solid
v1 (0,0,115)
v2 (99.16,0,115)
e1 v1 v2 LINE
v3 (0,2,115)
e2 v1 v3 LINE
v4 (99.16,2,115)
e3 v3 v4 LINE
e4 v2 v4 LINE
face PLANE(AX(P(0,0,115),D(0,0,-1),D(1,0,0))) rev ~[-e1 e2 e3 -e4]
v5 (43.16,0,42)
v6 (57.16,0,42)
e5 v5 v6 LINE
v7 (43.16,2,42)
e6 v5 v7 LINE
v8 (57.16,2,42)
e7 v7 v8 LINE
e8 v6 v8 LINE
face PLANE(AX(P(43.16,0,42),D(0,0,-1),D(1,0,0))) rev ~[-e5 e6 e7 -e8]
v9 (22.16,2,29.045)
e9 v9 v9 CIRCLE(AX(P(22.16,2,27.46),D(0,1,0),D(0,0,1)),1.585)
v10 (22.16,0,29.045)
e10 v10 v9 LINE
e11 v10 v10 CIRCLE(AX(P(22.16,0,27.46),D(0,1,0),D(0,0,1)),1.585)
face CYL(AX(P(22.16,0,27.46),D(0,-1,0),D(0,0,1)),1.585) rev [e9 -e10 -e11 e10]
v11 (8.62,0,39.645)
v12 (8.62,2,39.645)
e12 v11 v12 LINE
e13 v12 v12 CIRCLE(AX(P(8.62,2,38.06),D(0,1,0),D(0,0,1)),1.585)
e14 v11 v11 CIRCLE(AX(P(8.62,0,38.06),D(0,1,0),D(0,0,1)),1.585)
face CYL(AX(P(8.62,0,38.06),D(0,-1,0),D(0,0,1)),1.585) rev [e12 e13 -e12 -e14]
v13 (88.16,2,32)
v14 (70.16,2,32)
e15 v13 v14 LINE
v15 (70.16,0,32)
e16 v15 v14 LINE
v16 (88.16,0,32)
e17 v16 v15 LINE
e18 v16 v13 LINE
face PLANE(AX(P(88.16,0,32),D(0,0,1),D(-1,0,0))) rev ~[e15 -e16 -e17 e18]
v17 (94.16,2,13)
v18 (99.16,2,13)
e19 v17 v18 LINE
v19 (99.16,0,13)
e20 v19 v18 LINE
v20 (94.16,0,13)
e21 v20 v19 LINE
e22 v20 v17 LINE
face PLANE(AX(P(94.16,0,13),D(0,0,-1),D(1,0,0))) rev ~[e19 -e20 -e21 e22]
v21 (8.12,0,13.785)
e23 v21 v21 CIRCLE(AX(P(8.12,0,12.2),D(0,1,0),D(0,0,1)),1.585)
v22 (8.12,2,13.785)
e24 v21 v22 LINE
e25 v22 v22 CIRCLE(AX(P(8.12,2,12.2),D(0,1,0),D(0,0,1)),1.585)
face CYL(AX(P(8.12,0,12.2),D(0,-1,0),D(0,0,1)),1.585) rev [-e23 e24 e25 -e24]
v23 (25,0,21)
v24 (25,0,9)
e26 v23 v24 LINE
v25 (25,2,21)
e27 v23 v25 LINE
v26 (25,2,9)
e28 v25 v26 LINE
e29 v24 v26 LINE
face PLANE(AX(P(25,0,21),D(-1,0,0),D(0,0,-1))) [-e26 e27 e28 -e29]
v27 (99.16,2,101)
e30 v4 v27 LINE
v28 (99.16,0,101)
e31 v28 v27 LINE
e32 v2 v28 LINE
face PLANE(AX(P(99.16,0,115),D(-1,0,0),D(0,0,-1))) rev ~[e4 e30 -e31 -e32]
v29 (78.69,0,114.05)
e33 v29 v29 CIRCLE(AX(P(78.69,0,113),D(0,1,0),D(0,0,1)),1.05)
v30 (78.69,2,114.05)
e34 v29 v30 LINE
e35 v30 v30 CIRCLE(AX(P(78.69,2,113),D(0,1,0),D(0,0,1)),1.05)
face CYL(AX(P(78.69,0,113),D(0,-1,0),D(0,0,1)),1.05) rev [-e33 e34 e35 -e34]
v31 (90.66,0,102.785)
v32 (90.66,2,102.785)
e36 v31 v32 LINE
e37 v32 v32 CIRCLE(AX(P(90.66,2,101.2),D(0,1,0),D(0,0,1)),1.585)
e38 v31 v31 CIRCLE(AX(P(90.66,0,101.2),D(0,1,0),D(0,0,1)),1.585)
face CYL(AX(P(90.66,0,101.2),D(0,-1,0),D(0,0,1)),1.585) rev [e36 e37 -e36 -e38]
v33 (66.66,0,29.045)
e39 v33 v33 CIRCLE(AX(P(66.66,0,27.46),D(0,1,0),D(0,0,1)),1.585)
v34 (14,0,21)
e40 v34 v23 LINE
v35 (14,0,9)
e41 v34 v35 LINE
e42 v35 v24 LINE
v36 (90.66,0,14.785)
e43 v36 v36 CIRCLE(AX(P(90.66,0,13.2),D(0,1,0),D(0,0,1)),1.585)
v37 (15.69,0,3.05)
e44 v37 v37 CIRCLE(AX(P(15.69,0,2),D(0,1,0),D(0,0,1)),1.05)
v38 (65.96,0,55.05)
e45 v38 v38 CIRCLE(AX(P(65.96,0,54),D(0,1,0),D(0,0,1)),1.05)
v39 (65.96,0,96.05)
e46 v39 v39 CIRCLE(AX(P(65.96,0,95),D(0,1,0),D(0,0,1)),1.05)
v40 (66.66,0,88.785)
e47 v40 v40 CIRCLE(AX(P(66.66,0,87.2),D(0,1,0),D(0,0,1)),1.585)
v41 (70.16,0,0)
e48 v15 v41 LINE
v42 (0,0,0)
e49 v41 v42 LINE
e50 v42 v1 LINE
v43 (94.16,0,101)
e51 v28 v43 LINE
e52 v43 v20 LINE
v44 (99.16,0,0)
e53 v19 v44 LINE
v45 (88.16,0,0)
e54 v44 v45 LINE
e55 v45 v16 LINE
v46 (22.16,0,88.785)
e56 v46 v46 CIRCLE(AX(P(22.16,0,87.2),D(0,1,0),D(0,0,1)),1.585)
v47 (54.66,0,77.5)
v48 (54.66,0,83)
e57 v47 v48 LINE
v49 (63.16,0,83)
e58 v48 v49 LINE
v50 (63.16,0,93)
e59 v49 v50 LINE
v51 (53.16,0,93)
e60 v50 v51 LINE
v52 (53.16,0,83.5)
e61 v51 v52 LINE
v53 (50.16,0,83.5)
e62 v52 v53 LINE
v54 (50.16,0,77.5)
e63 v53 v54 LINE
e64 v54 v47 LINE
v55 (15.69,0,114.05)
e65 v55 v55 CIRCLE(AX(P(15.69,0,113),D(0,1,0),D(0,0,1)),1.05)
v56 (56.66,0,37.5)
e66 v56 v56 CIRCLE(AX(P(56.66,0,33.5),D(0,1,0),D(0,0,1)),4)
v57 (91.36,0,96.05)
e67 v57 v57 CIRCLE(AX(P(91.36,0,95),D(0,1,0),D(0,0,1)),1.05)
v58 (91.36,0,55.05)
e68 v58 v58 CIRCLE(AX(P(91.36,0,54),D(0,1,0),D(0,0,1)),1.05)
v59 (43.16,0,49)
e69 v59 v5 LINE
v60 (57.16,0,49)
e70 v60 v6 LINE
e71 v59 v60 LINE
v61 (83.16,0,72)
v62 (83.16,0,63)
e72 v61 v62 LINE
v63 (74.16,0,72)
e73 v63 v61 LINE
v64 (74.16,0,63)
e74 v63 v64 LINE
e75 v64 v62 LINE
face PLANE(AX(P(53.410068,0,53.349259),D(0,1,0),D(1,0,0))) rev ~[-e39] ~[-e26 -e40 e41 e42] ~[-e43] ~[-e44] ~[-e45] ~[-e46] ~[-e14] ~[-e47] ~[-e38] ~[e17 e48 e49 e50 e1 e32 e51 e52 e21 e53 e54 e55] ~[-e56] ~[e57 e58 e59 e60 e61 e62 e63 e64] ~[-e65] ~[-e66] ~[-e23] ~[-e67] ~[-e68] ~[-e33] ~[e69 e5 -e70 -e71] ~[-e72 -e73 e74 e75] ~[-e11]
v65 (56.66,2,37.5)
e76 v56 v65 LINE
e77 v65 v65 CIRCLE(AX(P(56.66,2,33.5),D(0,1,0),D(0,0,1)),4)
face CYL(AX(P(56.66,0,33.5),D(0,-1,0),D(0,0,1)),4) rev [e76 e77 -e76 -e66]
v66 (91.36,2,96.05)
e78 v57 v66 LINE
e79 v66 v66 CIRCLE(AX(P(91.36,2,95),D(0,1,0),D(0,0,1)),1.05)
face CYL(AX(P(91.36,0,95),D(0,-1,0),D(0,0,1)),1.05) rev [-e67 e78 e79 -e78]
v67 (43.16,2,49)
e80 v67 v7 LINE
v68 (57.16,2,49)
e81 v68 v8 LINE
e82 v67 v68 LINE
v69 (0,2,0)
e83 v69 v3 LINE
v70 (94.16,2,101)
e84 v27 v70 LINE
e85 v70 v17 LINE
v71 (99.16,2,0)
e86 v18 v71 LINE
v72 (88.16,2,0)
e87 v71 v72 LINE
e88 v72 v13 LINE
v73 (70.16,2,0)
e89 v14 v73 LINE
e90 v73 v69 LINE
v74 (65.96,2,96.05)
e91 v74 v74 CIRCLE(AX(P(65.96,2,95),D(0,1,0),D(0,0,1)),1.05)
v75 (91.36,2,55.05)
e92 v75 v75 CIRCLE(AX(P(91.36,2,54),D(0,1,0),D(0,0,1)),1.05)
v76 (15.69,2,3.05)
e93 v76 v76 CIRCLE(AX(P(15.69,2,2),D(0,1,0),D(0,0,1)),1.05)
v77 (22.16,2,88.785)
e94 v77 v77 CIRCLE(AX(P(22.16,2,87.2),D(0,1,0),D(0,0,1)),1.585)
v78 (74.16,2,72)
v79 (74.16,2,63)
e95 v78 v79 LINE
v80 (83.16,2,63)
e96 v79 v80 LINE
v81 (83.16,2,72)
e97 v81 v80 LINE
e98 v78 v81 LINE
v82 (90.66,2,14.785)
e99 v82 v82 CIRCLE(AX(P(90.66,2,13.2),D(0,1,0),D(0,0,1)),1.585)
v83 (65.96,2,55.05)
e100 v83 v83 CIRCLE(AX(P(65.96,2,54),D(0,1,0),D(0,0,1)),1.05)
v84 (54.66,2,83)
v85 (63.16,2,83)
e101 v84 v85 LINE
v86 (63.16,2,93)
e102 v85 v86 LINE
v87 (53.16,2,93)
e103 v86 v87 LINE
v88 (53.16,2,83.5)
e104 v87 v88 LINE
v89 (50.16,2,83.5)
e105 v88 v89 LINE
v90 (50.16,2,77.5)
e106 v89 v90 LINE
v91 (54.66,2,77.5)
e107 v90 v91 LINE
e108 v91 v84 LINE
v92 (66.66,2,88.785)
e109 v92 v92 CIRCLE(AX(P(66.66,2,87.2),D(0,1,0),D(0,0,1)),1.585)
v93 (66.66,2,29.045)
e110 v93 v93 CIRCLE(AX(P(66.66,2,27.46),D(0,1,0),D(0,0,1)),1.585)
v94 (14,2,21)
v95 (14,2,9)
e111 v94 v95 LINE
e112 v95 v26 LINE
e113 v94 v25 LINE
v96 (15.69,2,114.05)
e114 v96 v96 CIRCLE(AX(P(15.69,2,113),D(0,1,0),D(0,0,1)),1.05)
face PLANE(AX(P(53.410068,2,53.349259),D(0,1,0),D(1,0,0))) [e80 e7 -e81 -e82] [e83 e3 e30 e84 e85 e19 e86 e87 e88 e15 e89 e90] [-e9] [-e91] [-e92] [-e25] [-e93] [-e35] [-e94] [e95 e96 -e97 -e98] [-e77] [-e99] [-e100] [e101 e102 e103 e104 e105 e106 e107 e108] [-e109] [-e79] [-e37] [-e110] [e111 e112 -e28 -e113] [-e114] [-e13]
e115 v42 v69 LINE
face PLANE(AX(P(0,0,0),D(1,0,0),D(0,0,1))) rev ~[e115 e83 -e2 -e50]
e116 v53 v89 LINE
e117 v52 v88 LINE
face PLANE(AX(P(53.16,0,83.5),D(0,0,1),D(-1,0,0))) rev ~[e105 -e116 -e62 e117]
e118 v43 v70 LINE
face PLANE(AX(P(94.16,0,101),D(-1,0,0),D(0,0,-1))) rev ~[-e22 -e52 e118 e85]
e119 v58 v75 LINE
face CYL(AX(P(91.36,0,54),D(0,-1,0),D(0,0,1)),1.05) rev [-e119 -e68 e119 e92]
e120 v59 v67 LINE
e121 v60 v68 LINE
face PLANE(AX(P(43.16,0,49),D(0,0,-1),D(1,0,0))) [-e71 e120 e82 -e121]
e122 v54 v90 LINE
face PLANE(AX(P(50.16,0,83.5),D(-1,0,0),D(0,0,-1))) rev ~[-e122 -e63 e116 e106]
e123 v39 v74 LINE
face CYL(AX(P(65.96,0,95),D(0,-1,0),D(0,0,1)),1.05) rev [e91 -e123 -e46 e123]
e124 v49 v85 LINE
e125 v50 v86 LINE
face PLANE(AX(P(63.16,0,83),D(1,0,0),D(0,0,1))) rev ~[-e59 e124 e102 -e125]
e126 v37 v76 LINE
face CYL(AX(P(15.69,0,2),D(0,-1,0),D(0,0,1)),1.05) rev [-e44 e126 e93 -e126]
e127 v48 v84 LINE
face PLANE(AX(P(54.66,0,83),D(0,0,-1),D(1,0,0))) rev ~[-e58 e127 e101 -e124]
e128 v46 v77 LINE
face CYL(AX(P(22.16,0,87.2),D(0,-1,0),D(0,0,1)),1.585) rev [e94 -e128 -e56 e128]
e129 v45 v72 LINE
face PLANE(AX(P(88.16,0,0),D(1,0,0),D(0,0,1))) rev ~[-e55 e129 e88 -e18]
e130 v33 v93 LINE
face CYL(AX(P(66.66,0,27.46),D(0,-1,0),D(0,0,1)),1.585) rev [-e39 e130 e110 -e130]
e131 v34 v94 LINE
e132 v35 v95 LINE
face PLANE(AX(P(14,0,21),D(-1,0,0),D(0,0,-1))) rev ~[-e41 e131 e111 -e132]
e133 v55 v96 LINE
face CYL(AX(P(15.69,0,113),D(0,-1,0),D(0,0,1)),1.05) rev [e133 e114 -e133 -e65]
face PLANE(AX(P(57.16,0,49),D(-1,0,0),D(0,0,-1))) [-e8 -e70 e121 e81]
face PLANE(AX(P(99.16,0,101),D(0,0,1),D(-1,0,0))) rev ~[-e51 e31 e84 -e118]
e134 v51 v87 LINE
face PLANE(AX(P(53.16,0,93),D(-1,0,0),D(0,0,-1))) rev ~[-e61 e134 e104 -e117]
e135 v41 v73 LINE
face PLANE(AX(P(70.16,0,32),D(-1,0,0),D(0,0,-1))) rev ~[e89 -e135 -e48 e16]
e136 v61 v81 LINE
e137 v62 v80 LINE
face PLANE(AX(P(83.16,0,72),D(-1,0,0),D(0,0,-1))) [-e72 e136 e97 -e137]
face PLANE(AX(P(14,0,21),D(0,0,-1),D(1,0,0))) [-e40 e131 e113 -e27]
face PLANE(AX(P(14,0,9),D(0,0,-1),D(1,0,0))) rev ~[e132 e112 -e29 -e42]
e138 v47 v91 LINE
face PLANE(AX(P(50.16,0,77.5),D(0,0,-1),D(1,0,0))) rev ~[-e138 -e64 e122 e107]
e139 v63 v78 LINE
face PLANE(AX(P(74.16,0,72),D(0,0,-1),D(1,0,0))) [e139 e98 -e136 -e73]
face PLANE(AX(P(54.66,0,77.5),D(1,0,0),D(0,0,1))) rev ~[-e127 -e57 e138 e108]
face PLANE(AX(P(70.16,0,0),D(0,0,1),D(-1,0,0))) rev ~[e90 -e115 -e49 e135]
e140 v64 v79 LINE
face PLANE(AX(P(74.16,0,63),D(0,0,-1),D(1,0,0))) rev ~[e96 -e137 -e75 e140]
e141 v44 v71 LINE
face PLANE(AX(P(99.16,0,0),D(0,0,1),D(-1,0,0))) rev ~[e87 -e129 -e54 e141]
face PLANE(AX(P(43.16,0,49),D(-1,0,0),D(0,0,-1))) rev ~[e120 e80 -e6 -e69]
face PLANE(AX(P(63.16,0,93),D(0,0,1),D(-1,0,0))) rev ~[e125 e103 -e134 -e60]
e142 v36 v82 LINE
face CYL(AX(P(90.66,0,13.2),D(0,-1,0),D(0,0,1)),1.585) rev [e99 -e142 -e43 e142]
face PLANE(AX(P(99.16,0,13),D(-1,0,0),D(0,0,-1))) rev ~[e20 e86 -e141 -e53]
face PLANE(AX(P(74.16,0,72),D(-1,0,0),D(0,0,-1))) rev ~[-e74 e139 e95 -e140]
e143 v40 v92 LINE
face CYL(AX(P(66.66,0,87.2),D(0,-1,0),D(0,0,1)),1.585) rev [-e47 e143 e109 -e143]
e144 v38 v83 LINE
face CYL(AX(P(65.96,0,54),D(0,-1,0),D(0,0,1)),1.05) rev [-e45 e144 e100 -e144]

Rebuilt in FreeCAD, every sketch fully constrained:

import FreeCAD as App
import Part
import Sketcher

V = App.Vector


def add_polygon(sketch, points):
    """Adds a closed chain of lines whose ends are joined by coincident constraints."""
    first, n = sketch.GeometryCount, len(points)
    for a, b in zip(points, points[1:] + points[:1]):
        sketch.addGeometry(Part.LineSegment(App.Vector(*a, 0), App.Vector(*b, 0)), False)
    for i in range(n):
        sketch.addConstraint(Sketcher.Constraint("Coincident", first + i, 2, first + (i + 1) % n, 1))

doc = App.newDocument("Part")
params = doc.addObject("Spreadsheet::Sheet", "Params")
for row, (alias, value) in enumerate([
    ("sketch1_diameter", "8 mm"),
    ("sketch1_diameter2", "2.1 mm"),
    ("sketch1_diameter3", "3.17 mm"),
    ("sketch1_width", "5 mm"),
    ("sketch1_width2", "11 mm"),
    ("pad1_length", "2 mm"),
], start=1):
    params.set(f"A{row}", alias)
    params.set(f"B{row}", "=" + value)
    params.setAlias(f"B{row}", alias)

body = doc.addObject("PartDesign::Body", "Body")

# Sketch on XZ plane
sketch1 = doc.addObject("Sketcher::SketchObject", "Sketch")
body.addObject(sketch1)
sketch1.AttachmentSupport = (doc.XZ_Plane, [""])
sketch1.MapMode = "FlatFace"
add_polygon(sketch1, [(70.2, 0), (0, 0), (0, 115), (99.2, 115), (99.2, 101), (94.2, 101), (94.2, 13), (99.2, 13), (99.2, 0), (88.2, 0), (88.2, 32), (70.2, 32)])  # lines 0-11
sketch1.addGeometry(Part.Circle(V(15.7, 113, 0), V(0, 0, 1), 1.1), False)  # 12
sketch1.addGeometry(Part.Circle(V(22.2, 87.2, 0), V(0, 0, 1), 1.6), False)  # 13
sketch1.addGeometry(Part.Circle(V(66, 95, 0), V(0, 0, 1), 1.1), False)  # 14
sketch1.addGeometry(Part.Circle(V(66.7, 87.2, 0), V(0, 0, 1), 1.6), False)  # 15
sketch1.addGeometry(Part.Circle(V(78.7, 113, 0), V(0, 0, 1), 1.1), False)  # 16
sketch1.addGeometry(Part.Circle(V(90.7, 101.2, 0), V(0, 0, 1), 1.6), False)  # 17
sketch1.addGeometry(Part.Circle(V(91.4, 95, 0), V(0, 0, 1), 1.1), False)  # 18
add_polygon(sketch1, [(53.2, 83.5), (50.2, 83.5), (50.2, 77.5), (54.7, 77.5), (54.7, 83), (63.2, 83), (63.2, 93), (53.2, 93)])  # lines 19-26
add_polygon(sketch1, [(83.2, 72), (74.2, 72), (74.2, 63), (83.2, 63)])  # lines 27-30
sketch1.addGeometry(Part.Circle(V(8.6, 38.1, 0), V(0, 0, 1), 1.6), False)  # 31
sketch1.addGeometry(Part.Circle(V(22.2, 27.5, 0), V(0, 0, 1), 1.6), False)  # 32
sketch1.addGeometry(Part.Circle(V(8.1, 12.2, 0), V(0, 0, 1), 1.6), False)  # 33
sketch1.addGeometry(Part.Circle(V(15.7, 2, 0), V(0, 0, 1), 1.1), False)  # 34
add_polygon(sketch1, [(25, 21), (14, 21), (14, 9), (25, 9)])  # lines 35-38
add_polygon(sketch1, [(57.2, 49), (43.2, 49), (43.2, 42), (57.2, 42)])  # lines 39-42
sketch1.addGeometry(Part.Circle(V(66, 54, 0), V(0, 0, 1), 1.1), False)  # 43
sketch1.addGeometry(Part.Circle(V(56.7, 33.5, 0), V(0, 0, 1), 4), False)  # 44
sketch1.addGeometry(Part.Circle(V(91.4, 54, 0), V(0, 0, 1), 1.1), False)  # 45
sketch1.addGeometry(Part.Circle(V(66.7, 27.5, 0), V(0, 0, 1), 1.6), False)  # 46
sketch1.addGeometry(Part.Circle(V(90.7, 13.2, 0), V(0, 0, 1), 1.6), False)  # 47
sketch1.addConstraint(Sketcher.Constraint("Horizontal", 0))
sketch1.addConstraint(Sketcher.Constraint("Vertical", 1))
sketch1.addConstraint(Sketcher.Constraint("Horizontal", 2))
sketch1.addConstraint(Sketcher.Constraint("Vertical", 3))
sketch1.addConstraint(Sketcher.Constraint("Horizontal", 4))
sketch1.addConstraint(Sketcher.Constraint("Vertical", 5))
sketch1.addConstraint(Sketcher.Constraint("Horizontal", 6))
sketch1.addConstraint(Sketcher.Constraint("Vertical", 7))
sketch1.addConstraint(Sketcher.Constraint("Horizontal", 8))
sketch1.addConstraint(Sketcher.Constraint("Vertical", 9))
sketch1.addConstraint(Sketcher.Constraint("Horizontal", 10))
sketch1.addConstraint(Sketcher.Constraint("Vertical", 11))
sketch1.addConstraint(Sketcher.Constraint("Horizontal", 19))
sketch1.addConstraint(Sketcher.Constraint("Vertical", 20))
sketch1.addConstraint(Sketcher.Constraint("Horizontal", 21))
sketch1.addConstraint(Sketcher.Constraint("Vertical", 22))
sketch1.addConstraint(Sketcher.Constraint("Horizontal", 23))
sketch1.addConstraint(Sketcher.Constraint("Vertical", 24))
sketch1.addConstraint(Sketcher.Constraint("Horizontal", 25))
sketch1.addConstraint(Sketcher.Constraint("Vertical", 26))
sketch1.addConstraint(Sketcher.Constraint("Horizontal", 27))
sketch1.addConstraint(Sketcher.Constraint("Vertical", 28))
sketch1.addConstraint(Sketcher.Constraint("Horizontal", 29))
sketch1.addConstraint(Sketcher.Constraint("Vertical", 30))
sketch1.addConstraint(Sketcher.Constraint("Horizontal", 35))
sketch1.addConstraint(Sketcher.Constraint("Vertical", 36))
sketch1.addConstraint(Sketcher.Constraint("Horizontal", 37))
sketch1.addConstraint(Sketcher.Constraint("Vertical", 38))
sketch1.addConstraint(Sketcher.Constraint("Horizontal", 39))
sketch1.addConstraint(Sketcher.Constraint("Vertical", 40))
sketch1.addConstraint(Sketcher.Constraint("Horizontal", 41))
sketch1.addConstraint(Sketcher.Constraint("Vertical", 42))
sketch1.addConstraint(Sketcher.Constraint("Coincident", 0, 2, -1, 1))
sketch1.addConstraint(Sketcher.Constraint("Equal", 12, 14))
sketch1.addConstraint(Sketcher.Constraint("Equal", 13, 15))
sketch1.addConstraint(Sketcher.Constraint("Equal", 14, 16))
sketch1.addConstraint(Sketcher.Constraint("Equal", 15, 17))
sketch1.addConstraint(Sketcher.Constraint("Equal", 16, 18))
sketch1.addConstraint(Sketcher.Constraint("Equal", 17, 31))
sketch1.addConstraint(Sketcher.Constraint("Equal", 31, 32))
sketch1.addConstraint(Sketcher.Constraint("Equal", 32, 33))
sketch1.addConstraint(Sketcher.Constraint("Equal", 18, 34))
sketch1.addConstraint(Sketcher.Constraint("Equal", 34, 43))
sketch1.addConstraint(Sketcher.Constraint("Equal", 43, 45))
sketch1.addConstraint(Sketcher.Constraint("Equal", 33, 46))
sketch1.addConstraint(Sketcher.Constraint("Equal", 46, 47))
sketch1.addConstraint(Sketcher.Constraint("PointOnObject", 7, 2, -1))
sketch1.addConstraint(Sketcher.Constraint("Horizontal", 13, 3, 15, 3))
sketch1.addConstraint(Sketcher.Constraint("Horizontal", 12, 3, 16, 3))
sketch1.addConstraint(Sketcher.Constraint("Horizontal", 14, 3, 18, 3))
sketch1.addConstraint(Sketcher.Constraint("Horizontal", 43, 3, 45, 3))
sketch1.addConstraint(Sketcher.Constraint("Horizontal", 32, 3, 46, 3))
sketch1.addConstraint(Sketcher.Constraint("Vertical", 13, 3, 32, 3))
sketch1.addConstraint(Sketcher.Constraint("Vertical", 12, 3, 34, 3))
sketch1.addConstraint(Sketcher.Constraint("Vertical", 14, 3, 43, 3))
sketch1.addConstraint(Sketcher.Constraint("Vertical", 18, 3, 45, 3))
sketch1.addConstraint(Sketcher.Constraint("Vertical", 15, 3, 46, 3))
sketch1.addConstraint(Sketcher.Constraint("Vertical", 17, 3, 47, 3))
sketch1.addConstraint(Sketcher.Constraint("Vertical", 3, 2, 6, 2))
sketch1.addConstraint(Sketcher.Constraint("Equal", 8, 35))
sketch1.addConstraint(Sketcher.Constraint("Equal", 41, 3))
sketch1.addConstraint(Sketcher.Constraint("Equal", 25, 24))
sketch1.addConstraint(Sketcher.Constraint("Equal", 29, 28))
sketch1.addConstraint(Sketcher.Constraint("Diameter", 44, 8.0))
sketch1.addConstraint(Sketcher.Constraint("Diameter", 12, 2.1))
sketch1.addConstraint(Sketcher.Constraint("Diameter", 13, 3.17))
sketch1.addConstraint(Sketcher.Constraint("DistanceX", 4, 2, 4, 1, 5.0))
sketch1.addConstraint(Sketcher.Constraint("DistanceX", 8, 2, 8, 1, 11.0))
sketch1.addConstraint(Sketcher.Constraint("DistanceX", 10, 2, 10, 1, 18.0))
sketch1.addConstraint(Sketcher.Constraint("DistanceX", 19, 2, 19, 1, 3.0))
sketch1.addConstraint(Sketcher.Constraint("DistanceX", 25, 2, 25, 1, 10.0))
sketch1.addConstraint(Sketcher.Constraint("DistanceX", 27, 2, 27, 1, 9.0))
sketch1.addConstraint(Sketcher.Constraint("DistanceX", 39, 2, 39, 1, 14.0))
sketch1.addConstraint(Sketcher.Constraint("DistanceY", 1, 1, 1, 2, 115.0))
sketch1.addConstraint(Sketcher.Constraint("DistanceY", 5, 2, 5, 1, 88.0))
sketch1.addConstraint(Sketcher.Constraint("DistanceY", 9, 1, 9, 2, 32.0))
sketch1.addConstraint(Sketcher.Constraint("DistanceY", 20, 2, 20, 1, 6.0))
sketch1.addConstraint(Sketcher.Constraint("DistanceY", 36, 2, 36, 1, 12.0))
sketch1.addConstraint(Sketcher.Constraint("DistanceY", 40, 2, 40, 1, 7.0))
sketch1.addConstraint(Sketcher.Constraint("DistanceX", 21, 1, 21, 2, 4.5))
sketch1.addConstraint(Sketcher.Constraint("DistanceY", 22, 1, 22, 2, 5.5))
sketch1.addConstraint(Sketcher.Constraint("DistanceY", -1, 1, 12, 3, 113.0))
sketch1.addConstraint(Sketcher.Constraint("DistanceY", -1, 1, 14, 3, 95.0))
sketch1.addConstraint(Sketcher.Constraint("DistanceY", -1, 1, 34, 3, 2.0))
sketch1.addConstraint(Sketcher.Constraint("DistanceY", -1, 1, 43, 3, 54.0))
sketch1.addConstraint(Sketcher.Constraint("DistanceY", -1, 1, 22, 2, 83.0))
sketch1.addConstraint(Sketcher.Constraint("DistanceY", -1, 1, 27, 2, 72.0))
sketch1.addConstraint(Sketcher.Constraint("DistanceX", -1, 1, 35, 2, 14.0))
sketch1.addConstraint(Sketcher.Constraint("DistanceY", -1, 1, 35, 2, 21.0))
sketch1.addConstraint(Sketcher.Constraint("DistanceY", -1, 1, 39, 2, 49.0))
sketch1.addConstraint(Sketcher.Constraint("DistanceX", 12, 3, 16, 3, 63.0))
sketch1.addConstraint(Sketcher.Constraint("DistanceX", 15, 3, 17, 3, 24.0))
sketch1.addConstraint(Sketcher.Constraint("DistanceY", 15, 3, 17, 3, 14.0))
sketch1.addConstraint(Sketcher.Constraint("DistanceY", 33, 3, 13, 3, 75.0))
sketch1.addConstraint(Sketcher.Constraint("DistanceX", 44, 3, 46, 3, 10.0))
sketch1.addConstraint(Sketcher.Constraint("DistanceX", 13, 3, 19, 2, 28.0))
sketch1.addConstraint(Sketcher.Constraint("DistanceX", 21, 2, 15, 3, 12.0))
sketch1.addConstraint(Sketcher.Constraint("DistanceX", 23, 2, 27, 2, 11.0))
sketch1.addConstraint(Sketcher.Constraint("DistanceX", 39, 2, 20, 2, 7.0))
sketch1.addConstraint(Sketcher.Constraint("DistanceX", 41, 2, 10, 2, 13.0))
sketch1.addConstraint(Sketcher.Constraint("DistanceX", 0, 2, 0, 1, 70.16))
sketch1.addConstraint(Sketcher.Constraint("DistanceY", -1, 1, 13, 3, 87.2))
sketch1.addConstraint(Sketcher.Constraint("DistanceY", -1, 1, 44, 3, 33.5))
sketch1.addConstraint(Sketcher.Constraint("DistanceY", -1, 1, 47, 3, 13.2))
sketch1.addConstraint(Sketcher.Constraint("DistanceX", 13, 3, 14, 3, 43.8))
sketch1.addConstraint(Sketcher.Constraint("DistanceX", 17, 3, 18, 3, 0.7))
sketch1.addConstraint(Sketcher.Constraint("DistanceY", 32, 3, 31, 3, 10.6))
sketch1.addConstraint(Sketcher.Constraint("DistanceX", 33, 3, 31, 3, 0.5))
sketch1.addConstraint(Sketcher.Constraint("DistanceX", -1, 1, 12, 3, 15.69))
sketch1.addConstraint(Sketcher.Constraint("DistanceX", -1, 1, 31, 3, 8.62))
sketch1.addConstraint(Sketcher.Constraint("DistanceY", -1, 1, 31, 3, 38.06))
sketch1.setExpression("Constraints[95]", "Params.sketch1_diameter")
sketch1.setExpression("Constraints[96]", "Params.sketch1_diameter2")
sketch1.setExpression("Constraints[97]", "Params.sketch1_diameter3")
sketch1.setExpression("Constraints[98]", "Params.sketch1_width")
sketch1.setExpression("Constraints[99]", "Params.sketch1_width2")
pad1 = doc.addObject("PartDesign::Pad", "Pad")
body.addObject(pad1)
pad1.Profile = sketch1
pad1.setExpression("Length", "Params.pad1_length")
pad1.Reversed = True

doc.recompute()
